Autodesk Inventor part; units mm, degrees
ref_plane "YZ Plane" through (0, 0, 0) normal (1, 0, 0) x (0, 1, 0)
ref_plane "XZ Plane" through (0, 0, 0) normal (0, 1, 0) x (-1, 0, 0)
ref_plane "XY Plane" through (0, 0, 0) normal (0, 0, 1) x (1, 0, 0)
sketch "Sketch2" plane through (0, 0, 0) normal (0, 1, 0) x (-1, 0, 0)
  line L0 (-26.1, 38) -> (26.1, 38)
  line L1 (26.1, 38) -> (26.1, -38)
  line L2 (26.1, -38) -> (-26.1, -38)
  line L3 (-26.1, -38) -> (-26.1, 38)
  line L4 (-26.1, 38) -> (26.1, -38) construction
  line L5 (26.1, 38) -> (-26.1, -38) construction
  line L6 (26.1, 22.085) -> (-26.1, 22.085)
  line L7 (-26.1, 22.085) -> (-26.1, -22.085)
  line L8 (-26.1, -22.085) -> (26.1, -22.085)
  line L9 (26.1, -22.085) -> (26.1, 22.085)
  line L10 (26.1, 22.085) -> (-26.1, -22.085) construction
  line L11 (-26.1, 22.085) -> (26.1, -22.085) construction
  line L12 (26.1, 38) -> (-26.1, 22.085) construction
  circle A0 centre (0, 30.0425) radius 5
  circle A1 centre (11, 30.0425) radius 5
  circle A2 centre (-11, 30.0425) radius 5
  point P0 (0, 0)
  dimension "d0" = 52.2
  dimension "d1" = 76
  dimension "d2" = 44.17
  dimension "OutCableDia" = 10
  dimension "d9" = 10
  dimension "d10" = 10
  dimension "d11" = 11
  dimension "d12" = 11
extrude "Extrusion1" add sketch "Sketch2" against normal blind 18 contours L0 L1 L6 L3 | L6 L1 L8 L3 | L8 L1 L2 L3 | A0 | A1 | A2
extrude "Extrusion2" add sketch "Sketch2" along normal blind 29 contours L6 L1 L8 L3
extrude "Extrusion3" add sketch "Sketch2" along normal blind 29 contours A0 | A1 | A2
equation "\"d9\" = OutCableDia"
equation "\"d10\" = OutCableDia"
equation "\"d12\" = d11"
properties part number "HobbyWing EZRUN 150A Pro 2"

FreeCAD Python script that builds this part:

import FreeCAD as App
import Part
import Sketcher
Q = App.Units.Quantity

doc = App.newDocument("Part")
body = doc.addObject("PartDesign::Body", "Body")

# Sketch on XZ plane
sketch1 = body.newObject("Sketcher::SketchObject", "Sketch")
sketch1.AttachmentSupport = (doc.getObject("XZ_Plane"), [""])
sketch1.MapMode = "FlatFace"
sketch1.addGeometry([
    Part.LineSegment(App.Vector(-26, 38, 0), App.Vector(26, 38, 0)),
    Part.LineSegment(App.Vector(26, 38, 0), App.Vector(26, -38, 0)),
    Part.LineSegment(App.Vector(26, -38, 0), App.Vector(-26, -38, 0)),
    Part.LineSegment(App.Vector(-26, -38, 0), App.Vector(-26, 38, 0)),
], False)
sketch1.addConstraint([
    Sketcher.Constraint("Coincident", 0, 2, 1, 1),
    Sketcher.Constraint("Coincident", 1, 2, 2, 1),
    Sketcher.Constraint("Coincident", 2, 2, 3, 1),
    Sketcher.Constraint("Coincident", 3, 2, 0, 1),
    Sketcher.Constraint("Horizontal", 0),
    Sketcher.Constraint("Vertical", 1),
    Sketcher.Constraint("Horizontal", 2),
    Sketcher.Constraint("Vertical", 3),
    Sketcher.Constraint("Symmetric", 0, 2, 2, 2, -1, 1),
    Sketcher.Constraint("DistanceY", 1, 2, 1, 1, Q("76 mm")),
    Sketcher.Constraint("DistanceX", 0, 1, 0, 2, Q("52.2 mm")),
])
pad1 = body.newObject("PartDesign::Pad", "Pad")
pad1.Profile = sketch1
pad1.Length = 18

# Sketch on XZ plane
sketch2 = body.newObject("Sketcher::SketchObject", "Sketch001")
sketch2.AttachmentSupport = (doc.getObject("XZ_Plane"), [""])
sketch2.MapMode = "FlatFace"
sketch2.addGeometry([
    Part.LineSegment(App.Vector(-26, 22, 0), App.Vector(26, 22, 0)),
    Part.LineSegment(App.Vector(26, 22, 0), App.Vector(26, -22, 0)),
    Part.LineSegment(App.Vector(26, -22, 0), App.Vector(-26, -22, 0)),
    Part.LineSegment(App.Vector(-26, -22, 0), App.Vector(-26, 22, 0)),
], False)
sketch2.addConstraint([
    Sketcher.Constraint("Coincident", 0, 2, 1, 1),
    Sketcher.Constraint("Coincident", 1, 2, 2, 1),
    Sketcher.Constraint("Coincident", 2, 2, 3, 1),
    Sketcher.Constraint("Coincident", 3, 2, 0, 1),
    Sketcher.Constraint("Horizontal", 0),
    Sketcher.Constraint("Vertical", 1),
    Sketcher.Constraint("Horizontal", 2),
    Sketcher.Constraint("Vertical", 3),
    Sketcher.Constraint("Symmetric", 0, 2, 2, 2, -1, 1),
    Sketcher.Constraint("DistanceX", 0, 1, 0, 2, Q("52.2 mm")),
    Sketcher.Constraint("DistanceY", 1, 2, 1, 1, Q("44.17 mm")),
])
pad2 = body.newObject("PartDesign::Pad", "Pad001")
pad2.Profile = sketch2
pad2.Length = 29
pad2.Reversed = True

# Sketch on XZ plane
sketch3 = body.newObject("Sketcher::SketchObject", "Sketch002")
sketch3.AttachmentSupport = (doc.getObject("XZ_Plane"), [""])
sketch3.MapMode = "FlatFace"
sketch3.addGeometry([
    Part.Circle(App.Vector(0, 30, 0), App.Vector(0, 0, 1), 5),
    Part.Circle(App.Vector(-11, 30, 0), App.Vector(0, 0, 1), 5),
    Part.Circle(App.Vector(11, 30, 0), App.Vector(0, 0, 1), 5),
], False)
sketch3.addConstraint([
    Sketcher.Constraint("Equal", 0, 1),
    Sketcher.Constraint("Equal", 1, 2),
    Sketcher.Constraint("Symmetric", 1, 3, 2, 3, -2),
    Sketcher.Constraint("PointOnObject", 0, 3, -2),
    Sketcher.Constraint("Horizontal", 0, 3, 1, 3),
    Sketcher.Constraint("Diameter", 0, Q("10 mm")),
    Sketcher.Constraint("DistanceX", 1, 3, -1, 1, Q("11 mm")),
    Sketcher.Constraint("DistanceY", -1, 1, 0, 3, Q("30.0425 mm")),
])
pad3 = body.newObject("PartDesign::Pad", "Pad002")
pad3.Profile = sketch3
pad3.Length = 29
pad3.Reversed = True

doc.recompute()
